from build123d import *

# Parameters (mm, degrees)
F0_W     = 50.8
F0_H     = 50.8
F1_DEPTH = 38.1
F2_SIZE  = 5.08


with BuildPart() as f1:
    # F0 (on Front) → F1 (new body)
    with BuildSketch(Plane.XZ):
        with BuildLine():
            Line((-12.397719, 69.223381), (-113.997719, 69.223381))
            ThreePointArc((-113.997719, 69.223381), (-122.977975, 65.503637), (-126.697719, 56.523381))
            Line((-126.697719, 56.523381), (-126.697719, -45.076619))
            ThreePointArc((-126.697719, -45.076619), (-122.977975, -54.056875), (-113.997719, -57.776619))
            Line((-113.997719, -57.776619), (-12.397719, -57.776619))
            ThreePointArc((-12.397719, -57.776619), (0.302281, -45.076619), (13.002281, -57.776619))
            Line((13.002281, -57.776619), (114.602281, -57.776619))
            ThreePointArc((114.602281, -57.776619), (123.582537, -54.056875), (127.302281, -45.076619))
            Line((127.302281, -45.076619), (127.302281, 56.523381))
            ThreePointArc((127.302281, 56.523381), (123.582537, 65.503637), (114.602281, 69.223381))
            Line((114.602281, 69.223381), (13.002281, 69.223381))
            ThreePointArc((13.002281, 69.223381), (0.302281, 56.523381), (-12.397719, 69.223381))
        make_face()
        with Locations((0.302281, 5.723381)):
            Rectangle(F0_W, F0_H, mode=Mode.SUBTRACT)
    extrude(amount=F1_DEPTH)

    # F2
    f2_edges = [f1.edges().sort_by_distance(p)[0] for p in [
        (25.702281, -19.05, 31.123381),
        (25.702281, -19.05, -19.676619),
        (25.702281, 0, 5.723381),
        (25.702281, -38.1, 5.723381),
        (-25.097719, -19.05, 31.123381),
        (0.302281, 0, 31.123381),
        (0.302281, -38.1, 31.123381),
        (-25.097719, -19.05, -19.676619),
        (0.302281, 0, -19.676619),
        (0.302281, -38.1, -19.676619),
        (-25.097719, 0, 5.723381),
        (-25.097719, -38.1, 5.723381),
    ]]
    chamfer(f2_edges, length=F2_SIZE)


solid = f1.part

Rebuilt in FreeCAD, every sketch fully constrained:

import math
import FreeCAD as App
import Part
import Sketcher
Q = App.Units.Quantity


def edges_at(feature, points):
    """Names of the edges that pass closest to the given points."""
    edges = feature.Shape.Edges
    near = lambda p: min(range(len(edges)), key=lambda i: edges[i].distToShape(Part.Vertex(*p))[0])
    return sorted({f"Edge{near(p) + 1}" for p in points})


def add_polygon(sketch, points):
    """Adds a closed chain of lines whose ends are joined by coincident constraints."""
    first, n = sketch.GeometryCount, len(points)
    for a, b in zip(points, points[1:] + points[:1]):
        sketch.addGeometry(Part.LineSegment(App.Vector(*a, 0), App.Vector(*b, 0)), False)
    for i in range(n):
        sketch.addConstraint(Sketcher.Constraint("Coincident", first + i, 2, first + (i + 1) % n, 1))

doc = App.newDocument("Part")
params = doc.addObject("Spreadsheet::Sheet", "Params")
for row, (alias, value) in enumerate([
    ("sketch1_radius", "0.5 in"),
    ("sketch1_width", "4 in"),
    ("sketch1_width2", "2 in"),
    ("pad1_length", "1.5 in"),
    ("chamfer_size", "0.2 in"),
], start=1):
    params.set(f"A{row}", alias)
    params.set(f"B{row}", "=" + value)
    params.setAlias(f"B{row}", alias)

body = doc.addObject("PartDesign::Body", "Body")

# Sketch on XZ plane
sketch1 = body.newObject("Sketcher::SketchObject", "Sketch")
sketch1.AttachmentSupport = (doc.getObject("XZ_Plane"), [""])
sketch1.MapMode = "FlatFace"
sketch1.addGeometry(Part.LineSegment(App.Vector(-12.397719, 69.223381, 0), App.Vector(-113.997719, 69.223381, 0)), False)  # 0
sketch1.addGeometry(Part.ArcOfCircle(Part.Circle(App.Vector(-113.997719, 56.523381, 0), App.Vector(0, 0, 1), 12.7), math.radians(90.000002), math.radians(179.999998)), False)  # 1
sketch1.addGeometry(Part.LineSegment(App.Vector(-126.697719, 56.523381, 0), App.Vector(-126.697719, -45.076619, 0)), False)  # 2
sketch1.addGeometry(Part.ArcOfCircle(Part.Circle(App.Vector(-113.997719, -45.076619, 0), App.Vector(0, 0, 1), 12.7), math.radians(-179.999998), math.radians(-90.000002)), False)  # 3
sketch1.addGeometry(Part.LineSegment(App.Vector(-113.997719, -57.776619, 0), App.Vector(-12.397719, -57.776619, 0)), False)  # 4
sketch1.addGeometry(Part.ArcOfCircle(Part.Circle(App.Vector(0.302281, -57.776619, 0), App.Vector(0, 0, 1), 12.7), math.radians(0), math.radians(180)), False)  # 5
sketch1.addGeometry(Part.LineSegment(App.Vector(13.002281, -57.776619, 0), App.Vector(114.602281, -57.776619, 0)), False)  # 6
sketch1.addGeometry(Part.ArcOfCircle(Part.Circle(App.Vector(114.602281, -45.076619, 0), App.Vector(0, 0, 1), 12.7), math.radians(-89.999998), math.radians(-0.000002)), False)  # 7
sketch1.addGeometry(Part.LineSegment(App.Vector(127.302281, -45.076619, 0), App.Vector(127.302281, 56.523381, 0)), False)  # 8
sketch1.addGeometry(Part.ArcOfCircle(Part.Circle(App.Vector(114.602281, 56.523381, 0), App.Vector(0, 0, 1), 12.7), math.radians(0.000002), math.radians(89.999998)), False)  # 9
sketch1.addGeometry(Part.LineSegment(App.Vector(114.602281, 69.223381, 0), App.Vector(13.002281, 69.223381, 0)), False)  # 10
sketch1.addGeometry(Part.ArcOfCircle(Part.Circle(App.Vector(0.302281, 69.223381, 0), App.Vector(0, 0, 1), 12.7), math.radians(180), math.radians(360)), False)  # 11
add_polygon(sketch1, [(25.702281, -19.676619), (-25.097719, -19.676619), (-25.097719, 31.123381), (25.702281, 31.123381)])  # lines 12-15
sketch1.addConstraint(Sketcher.Constraint("Tangent", 0, 2, 1, 1))
sketch1.addConstraint(Sketcher.Constraint("Tangent", 1, 2, 2, 1))
sketch1.addConstraint(Sketcher.Constraint("Tangent", 2, 2, 3, 1))
sketch1.addConstraint(Sketcher.Constraint("Tangent", 3, 2, 4, 1))
sketch1.addConstraint(Sketcher.Constraint("Coincident", 4, 2, 5, 2))
sketch1.addConstraint(Sketcher.Constraint("Coincident", 5, 1, 6, 1))
sketch1.addConstraint(Sketcher.Constraint("Tangent", 6, 2, 7, 1))
sketch1.addConstraint(Sketcher.Constraint("Tangent", 7, 2, 8, 1))
sketch1.addConstraint(Sketcher.Constraint("Tangent", 8, 2, 9, 1))
sketch1.addConstraint(Sketcher.Constraint("Tangent", 9, 2, 10, 1))
sketch1.addConstraint(Sketcher.Constraint("Coincident", 10, 2, 11, 2))
sketch1.addConstraint(Sketcher.Constraint("Coincident", 11, 1, 0, 1))
sketch1.addConstraint(Sketcher.Constraint("Horizontal", 0))
sketch1.addConstraint(Sketcher.Constraint("Vertical", 2))
sketch1.addConstraint(Sketcher.Constraint("Horizontal", 4))
sketch1.addConstraint(Sketcher.Constraint("Horizontal", 6))
sketch1.addConstraint(Sketcher.Constraint("Vertical", 8))
sketch1.addConstraint(Sketcher.Constraint("Horizontal", 10))
sketch1.addConstraint(Sketcher.Constraint("Horizontal", 12))
sketch1.addConstraint(Sketcher.Constraint("Vertical", 13))
sketch1.addConstraint(Sketcher.Constraint("Horizontal", 14))
sketch1.addConstraint(Sketcher.Constraint("Vertical", 15))
sketch1.addConstraint(Sketcher.Constraint("Equal", 1, 3))
sketch1.addConstraint(Sketcher.Constraint("Equal", 3, 5))
sketch1.addConstraint(Sketcher.Constraint("Equal", 5, 7))
sketch1.addConstraint(Sketcher.Constraint("Equal", 7, 9))
sketch1.addConstraint(Sketcher.Constraint("Equal", 9, 11))
sketch1.addConstraint(Sketcher.Constraint("Horizontal", 3, 3, 7, 3))
sketch1.addConstraint(Sketcher.Constraint("Horizontal", 1, 3, 9, 3))
sketch1.addConstraint(Sketcher.Constraint("Horizontal", 11, 3, 0, 2))
sketch1.addConstraint(Sketcher.Constraint("Horizontal", 5, 3, 3, 2))
sketch1.addConstraint(Sketcher.Constraint("Vertical", 5, 3, 11, 3))
sketch1.addConstraint(Sketcher.Constraint("Equal", 4, 6))
sketch1.addConstraint(Sketcher.Constraint("Equal", 10, 2))
sketch1.addConstraint(Sketcher.Constraint("Equal", 14, 13))
sketch1.addConstraint(Sketcher.Constraint("Radius", 1, Q("0.5 in")))
sketch1.addConstraint(Sketcher.Constraint("DistanceX", 0, 2, 0, 1, Q("4 in")))
sketch1.addConstraint(Sketcher.Constraint("DistanceX", 12, 2, 12, 1, Q("2 in")))
sketch1.addConstraint(Sketcher.Constraint("DistanceX", 12, 2, 5, 3, Q("1 in")))
sketch1.addConstraint(Sketcher.Constraint("DistanceY", 3, 3, 12, 2, Q("1 in")))
sketch1.addConstraint(Sketcher.Constraint("DistanceX", 1, 3, -1, 1, 113.997719))
sketch1.addConstraint(Sketcher.Constraint("DistanceY", -1, 1, 1, 3, 56.523381))
sketch1.setExpression("Constraints[39]", "Params.sketch1_radius")
sketch1.setExpression("Constraints[40]", "Params.sketch1_width")
sketch1.setExpression("Constraints[41]", "Params.sketch1_width2")
pad1 = body.newObject("PartDesign::Pad", "Pad")
pad1.Profile = sketch1
pad1.setExpression("Length", "Params.pad1_length")
doc.recompute()

chamfer = body.newObject("PartDesign::Chamfer", "Chamfer")
chamfer.Base = (pad1, edges_at(pad1, [
    (25.702, -19.05, 31.123),
    (25.702, -19.05, -19.677),
    (25.702, 0, 5.723),
    (25.702, -38.1, 5.723),
    (-25.098, -19.05, 31.123),
    (0.302, 0, 31.123),
    (0.302, -38.1, 31.123),
    (-25.098, -19.05, -19.677),
    (0.302, 0, -19.677),
    (0.302, -38.1, -19.677),
    (-25.098, 0, 5.723),
    (-25.098, -38.1, 5.723),
]))
chamfer.setExpression("Size", "Params.chamfer_size")

doc.recompute()
